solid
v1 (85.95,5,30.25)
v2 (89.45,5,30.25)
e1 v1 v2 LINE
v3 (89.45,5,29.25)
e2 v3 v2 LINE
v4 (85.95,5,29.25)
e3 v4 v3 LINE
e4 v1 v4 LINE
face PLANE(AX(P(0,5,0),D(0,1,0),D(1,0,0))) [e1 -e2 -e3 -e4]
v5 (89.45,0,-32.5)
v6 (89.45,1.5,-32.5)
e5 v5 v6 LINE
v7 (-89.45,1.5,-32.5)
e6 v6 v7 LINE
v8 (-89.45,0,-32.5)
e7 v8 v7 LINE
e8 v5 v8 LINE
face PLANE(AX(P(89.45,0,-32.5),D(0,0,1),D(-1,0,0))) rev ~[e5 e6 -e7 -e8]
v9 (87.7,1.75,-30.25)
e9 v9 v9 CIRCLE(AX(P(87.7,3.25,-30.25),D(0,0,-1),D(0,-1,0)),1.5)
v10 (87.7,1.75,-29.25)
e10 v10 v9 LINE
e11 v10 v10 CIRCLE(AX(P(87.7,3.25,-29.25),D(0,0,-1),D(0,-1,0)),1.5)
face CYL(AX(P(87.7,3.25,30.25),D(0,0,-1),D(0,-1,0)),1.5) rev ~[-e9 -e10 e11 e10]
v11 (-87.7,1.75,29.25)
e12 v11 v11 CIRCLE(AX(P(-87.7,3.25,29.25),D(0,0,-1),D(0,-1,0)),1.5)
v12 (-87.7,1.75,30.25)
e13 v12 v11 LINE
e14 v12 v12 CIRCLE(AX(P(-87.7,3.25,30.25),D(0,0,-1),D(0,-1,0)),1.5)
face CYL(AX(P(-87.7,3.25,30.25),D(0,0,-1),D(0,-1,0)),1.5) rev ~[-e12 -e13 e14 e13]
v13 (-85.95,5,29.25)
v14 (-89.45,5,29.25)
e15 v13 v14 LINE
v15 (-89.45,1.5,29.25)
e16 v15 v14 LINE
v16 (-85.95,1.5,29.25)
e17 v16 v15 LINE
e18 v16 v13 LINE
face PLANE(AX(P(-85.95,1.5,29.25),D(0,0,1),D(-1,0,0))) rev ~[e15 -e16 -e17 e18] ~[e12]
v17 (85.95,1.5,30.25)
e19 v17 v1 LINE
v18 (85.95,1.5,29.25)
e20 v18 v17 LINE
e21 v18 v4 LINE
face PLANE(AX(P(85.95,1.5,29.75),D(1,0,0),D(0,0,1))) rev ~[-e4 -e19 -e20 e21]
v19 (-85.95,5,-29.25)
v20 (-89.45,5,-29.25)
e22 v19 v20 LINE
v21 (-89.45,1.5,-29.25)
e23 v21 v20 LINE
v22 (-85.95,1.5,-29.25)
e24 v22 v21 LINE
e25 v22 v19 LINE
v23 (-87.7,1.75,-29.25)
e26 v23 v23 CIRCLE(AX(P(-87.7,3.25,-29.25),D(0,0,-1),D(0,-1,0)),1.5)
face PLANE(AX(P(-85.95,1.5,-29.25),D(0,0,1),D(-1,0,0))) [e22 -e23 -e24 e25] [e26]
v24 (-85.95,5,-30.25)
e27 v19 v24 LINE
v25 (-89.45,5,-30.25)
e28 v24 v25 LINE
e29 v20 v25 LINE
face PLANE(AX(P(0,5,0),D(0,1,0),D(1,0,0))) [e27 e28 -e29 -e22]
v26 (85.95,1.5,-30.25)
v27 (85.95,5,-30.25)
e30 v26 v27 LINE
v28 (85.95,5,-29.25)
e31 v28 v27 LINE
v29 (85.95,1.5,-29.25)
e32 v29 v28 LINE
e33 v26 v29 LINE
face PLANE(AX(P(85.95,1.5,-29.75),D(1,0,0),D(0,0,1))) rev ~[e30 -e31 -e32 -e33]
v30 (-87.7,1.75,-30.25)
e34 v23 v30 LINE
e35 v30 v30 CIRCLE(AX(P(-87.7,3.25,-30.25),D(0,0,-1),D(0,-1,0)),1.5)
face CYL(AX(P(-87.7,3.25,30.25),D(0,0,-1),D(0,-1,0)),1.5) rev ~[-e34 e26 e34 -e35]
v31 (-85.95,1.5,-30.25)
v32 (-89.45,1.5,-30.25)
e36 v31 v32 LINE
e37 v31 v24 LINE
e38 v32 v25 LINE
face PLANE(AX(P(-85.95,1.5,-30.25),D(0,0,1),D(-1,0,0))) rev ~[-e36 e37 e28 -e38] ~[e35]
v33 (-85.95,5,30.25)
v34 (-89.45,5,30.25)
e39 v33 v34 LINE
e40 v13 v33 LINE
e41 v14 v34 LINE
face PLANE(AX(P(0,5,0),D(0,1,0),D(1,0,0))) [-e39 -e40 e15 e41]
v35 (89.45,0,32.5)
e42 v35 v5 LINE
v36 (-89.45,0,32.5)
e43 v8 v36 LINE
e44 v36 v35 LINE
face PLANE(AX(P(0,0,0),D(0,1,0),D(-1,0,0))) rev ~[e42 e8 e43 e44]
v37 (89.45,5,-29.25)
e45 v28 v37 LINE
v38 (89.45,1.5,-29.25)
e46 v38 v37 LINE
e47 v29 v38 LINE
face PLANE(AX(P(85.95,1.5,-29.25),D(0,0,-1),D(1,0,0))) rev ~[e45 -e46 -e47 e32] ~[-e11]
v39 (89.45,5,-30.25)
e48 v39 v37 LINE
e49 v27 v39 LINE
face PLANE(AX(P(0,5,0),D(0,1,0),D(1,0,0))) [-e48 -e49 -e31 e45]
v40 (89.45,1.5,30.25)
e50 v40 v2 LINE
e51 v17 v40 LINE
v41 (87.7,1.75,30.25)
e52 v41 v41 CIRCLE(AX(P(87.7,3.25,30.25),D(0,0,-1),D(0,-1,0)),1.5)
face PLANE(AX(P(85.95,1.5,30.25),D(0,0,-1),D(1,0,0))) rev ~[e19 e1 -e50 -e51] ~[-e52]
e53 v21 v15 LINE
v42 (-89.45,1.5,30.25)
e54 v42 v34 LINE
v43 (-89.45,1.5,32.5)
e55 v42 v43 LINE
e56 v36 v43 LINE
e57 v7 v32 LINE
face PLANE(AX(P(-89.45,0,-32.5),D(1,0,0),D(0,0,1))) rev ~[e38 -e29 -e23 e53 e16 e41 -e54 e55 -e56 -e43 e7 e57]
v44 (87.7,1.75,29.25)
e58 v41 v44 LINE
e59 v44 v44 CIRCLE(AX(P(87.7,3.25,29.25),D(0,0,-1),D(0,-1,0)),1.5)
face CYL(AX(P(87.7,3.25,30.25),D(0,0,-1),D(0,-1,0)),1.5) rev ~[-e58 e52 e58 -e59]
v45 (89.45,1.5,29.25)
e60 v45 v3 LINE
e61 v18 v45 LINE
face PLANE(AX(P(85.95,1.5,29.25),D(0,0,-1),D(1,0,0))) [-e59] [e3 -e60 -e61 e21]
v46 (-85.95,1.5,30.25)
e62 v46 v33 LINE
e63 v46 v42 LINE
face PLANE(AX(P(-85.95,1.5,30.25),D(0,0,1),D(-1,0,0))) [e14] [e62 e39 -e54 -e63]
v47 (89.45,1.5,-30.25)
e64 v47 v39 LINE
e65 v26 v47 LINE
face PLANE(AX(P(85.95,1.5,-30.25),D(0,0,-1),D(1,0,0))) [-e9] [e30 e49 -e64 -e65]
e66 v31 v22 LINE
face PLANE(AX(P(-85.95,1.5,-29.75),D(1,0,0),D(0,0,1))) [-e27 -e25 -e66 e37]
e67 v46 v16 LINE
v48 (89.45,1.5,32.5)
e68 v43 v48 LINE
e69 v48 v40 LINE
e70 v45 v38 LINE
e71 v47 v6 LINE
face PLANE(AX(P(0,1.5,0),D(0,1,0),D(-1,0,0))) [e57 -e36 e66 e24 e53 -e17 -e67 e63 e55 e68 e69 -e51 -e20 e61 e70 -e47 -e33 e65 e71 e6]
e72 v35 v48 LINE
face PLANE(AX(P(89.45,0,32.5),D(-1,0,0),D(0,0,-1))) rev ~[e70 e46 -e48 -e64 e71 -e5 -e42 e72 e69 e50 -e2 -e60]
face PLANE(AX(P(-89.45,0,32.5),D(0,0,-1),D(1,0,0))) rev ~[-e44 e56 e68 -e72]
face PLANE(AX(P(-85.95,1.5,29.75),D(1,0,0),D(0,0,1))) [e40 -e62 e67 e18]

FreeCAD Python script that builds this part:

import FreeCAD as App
import Part
import Sketcher
Q = App.Units.Quantity

doc = App.newDocument("Part")
params = doc.addObject("Spreadsheet::Sheet", "Params")
for row, (alias, value) in enumerate([
    ("sketch1_height", "65 mm"),
    ("sketch1_width", "178.9 mm"),
    ("pad1_length", "1.5 mm"),
    ("sketch2_width", "3.5 mm"),
    ("sketch2_height", "1 mm"),
    ("pad2_length", "3.5 mm"),
    ("sketch3_diameter", "3 mm"),
    ("hole_diameter", "3 mm"),
    ("sketch4_diameter", "3 mm"),
    ("hole2_diameter", "3 mm"),
], start=1):
    params.set(f"A{row}", alias)
    params.set(f"B{row}", "=" + value)
    params.setAlias(f"B{row}", alias)

body = doc.addObject("PartDesign::Body", "Body")

# Sketch on XZ plane
sketch1 = doc.addObject("Sketcher::SketchObject", "Sketch")
body.addObject(sketch1)
sketch1.AttachmentSupport = (doc.XZ_Plane, [""])
sketch1.MapMode = "FlatFace"
sketch1.addGeometry(Part.LineSegment(App.Vector(-89.45, -32.5, 0), App.Vector(-89.45, 32.5, 0)), False)
sketch1.addGeometry(Part.LineSegment(App.Vector(-89.45, 32.5, 0), App.Vector(89.45, 32.5, 0)), False)
sketch1.addGeometry(Part.LineSegment(App.Vector(89.45, 32.5, 0), App.Vector(89.45, -32.5, 0)), False)
sketch1.addGeometry(Part.LineSegment(App.Vector(89.45, -32.5, 0), App.Vector(-89.45, -32.5, 0)), False)
sketch1.addConstraint(Sketcher.Constraint("Coincident", 0, 2, 1, 1))
sketch1.addConstraint(Sketcher.Constraint("Coincident", 1, 2, 2, 1))
sketch1.addConstraint(Sketcher.Constraint("Coincident", 2, 2, 3, 1))
sketch1.addConstraint(Sketcher.Constraint("Coincident", 3, 2, 0, 1))
sketch1.addConstraint(Sketcher.Constraint("Vertical", 0))
sketch1.addConstraint(Sketcher.Constraint("Horizontal", 1))
sketch1.addConstraint(Sketcher.Constraint("Vertical", 2))
sketch1.addConstraint(Sketcher.Constraint("Horizontal", 3))
sketch1.addConstraint(Sketcher.Constraint("Symmetric", 0, 2, 2, 2, -1, 1))
sketch1.addConstraint(Sketcher.Constraint("DistanceY", 0, 1, 0, 2, Q("65 mm")))
sketch1.addConstraint(Sketcher.Constraint("DistanceX", 1, 1, 1, 2, Q("178.9 mm")))
sketch1.setExpression("Constraints[9]", "Params.sketch1_height")
sketch1.setExpression("Constraints[10]", "Params.sketch1_width")
pad1 = doc.addObject("PartDesign::Pad", "Pad")
body.addObject(pad1)
pad1.Profile = sketch1
pad1.setExpression("Length", "Params.pad1_length")
pad1.Reversed = True

# Sketch on XZ plane
sketch2 = doc.addObject("Sketcher::SketchObject", "Sketch001")
body.addObject(sketch2)
sketch2.AttachmentSupport = (doc.XZ_Plane, [""])
sketch2.MapMode = "FlatFace"
sketch2.AttachmentOffset = App.Placement(App.Vector(0, 0, -1.5), App.Rotation())
sketch2.addGeometry(Part.LineSegment(App.Vector(85.95, 30.25, 0), App.Vector(89.45, 30.25, 0)), False)
sketch2.addGeometry(Part.LineSegment(App.Vector(89.45, 30.25, 0), App.Vector(89.45, 29.25, 0)), False)
sketch2.addGeometry(Part.LineSegment(App.Vector(89.45, 29.25, 0), App.Vector(85.95, 29.25, 0)), False)
sketch2.addGeometry(Part.LineSegment(App.Vector(85.95, 29.25, 0), App.Vector(85.95, 30.25, 0)), False)
sketch2.addGeometry(Part.LineSegment(App.Vector(85.95, -29.25, 0), App.Vector(89.45, -29.25, 0)), False)
sketch2.addGeometry(Part.LineSegment(App.Vector(89.45, -29.25, 0), App.Vector(89.45, -30.25, 0)), False)
sketch2.addGeometry(Part.LineSegment(App.Vector(89.45, -30.25, 0), App.Vector(85.95, -30.25, 0)), False)
sketch2.addGeometry(Part.LineSegment(App.Vector(85.95, -30.25, 0), App.Vector(85.95, -29.25, 0)), False)
sketch2.addGeometry(Part.LineSegment(App.Vector(-85.95, 30.25, 0), App.Vector(-85.95, 29.25, 0)), False)
sketch2.addGeometry(Part.LineSegment(App.Vector(-85.95, 29.25, 0), App.Vector(-89.45, 29.25, 0)), False)
sketch2.addGeometry(Part.LineSegment(App.Vector(-89.45, 29.25, 0), App.Vector(-89.45, 30.25, 0)), False)
sketch2.addGeometry(Part.LineSegment(App.Vector(-89.45, 30.25, 0), App.Vector(-85.95, 30.25, 0)), False)
sketch2.addGeometry(Part.LineSegment(App.Vector(-89.45, -29.25, 0), App.Vector(-85.95, -29.25, 0)), False)
sketch2.addGeometry(Part.LineSegment(App.Vector(-85.95, -29.25, 0), App.Vector(-85.95, -30.25, 0)), False)
sketch2.addGeometry(Part.LineSegment(App.Vector(-85.95, -30.25, 0), App.Vector(-89.45, -30.25, 0)), False)
sketch2.addGeometry(Part.LineSegment(App.Vector(-89.45, -30.25, 0), App.Vector(-89.45, -29.25, 0)), False)
sketch2.addConstraint(Sketcher.Constraint("Coincident", 0, 2, 1, 1))
sketch2.addConstraint(Sketcher.Constraint("Coincident", 1, 2, 2, 1))
sketch2.addConstraint(Sketcher.Constraint("Coincident", 2, 2, 3, 1))
sketch2.addConstraint(Sketcher.Constraint("Coincident", 3, 2, 0, 1))
sketch2.addConstraint(Sketcher.Constraint("Coincident", 4, 2, 5, 1))
sketch2.addConstraint(Sketcher.Constraint("Coincident", 5, 2, 6, 1))
sketch2.addConstraint(Sketcher.Constraint("Coincident", 6, 2, 7, 1))
sketch2.addConstraint(Sketcher.Constraint("Coincident", 7, 2, 4, 1))
sketch2.addConstraint(Sketcher.Constraint("Coincident", 8, 2, 9, 1))
sketch2.addConstraint(Sketcher.Constraint("Coincident", 9, 2, 10, 1))
sketch2.addConstraint(Sketcher.Constraint("Coincident", 10, 2, 11, 1))
sketch2.addConstraint(Sketcher.Constraint("Coincident", 11, 2, 8, 1))
sketch2.addConstraint(Sketcher.Constraint("Coincident", 12, 2, 13, 1))
sketch2.addConstraint(Sketcher.Constraint("Coincident", 13, 2, 14, 1))
sketch2.addConstraint(Sketcher.Constraint("Coincident", 14, 2, 15, 1))
sketch2.addConstraint(Sketcher.Constraint("Coincident", 15, 2, 12, 1))
sketch2.addConstraint(Sketcher.Constraint("Horizontal", 0))
sketch2.addConstraint(Sketcher.Constraint("Vertical", 1))
sketch2.addConstraint(Sketcher.Constraint("Horizontal", 2))
sketch2.addConstraint(Sketcher.Constraint("Vertical", 3))
sketch2.addConstraint(Sketcher.Constraint("Horizontal", 4))
sketch2.addConstraint(Sketcher.Constraint("Vertical", 5))
sketch2.addConstraint(Sketcher.Constraint("Horizontal", 6))
sketch2.addConstraint(Sketcher.Constraint("Vertical", 7))
sketch2.addConstraint(Sketcher.Constraint("Vertical", 8))
sketch2.addConstraint(Sketcher.Constraint("Horizontal", 9))
sketch2.addConstraint(Sketcher.Constraint("Vertical", 10))
sketch2.addConstraint(Sketcher.Constraint("Horizontal", 11))
sketch2.addConstraint(Sketcher.Constraint("Horizontal", 12))
sketch2.addConstraint(Sketcher.Constraint("Vertical", 13))
sketch2.addConstraint(Sketcher.Constraint("Horizontal", 14))
sketch2.addConstraint(Sketcher.Constraint("Vertical", 15))
sketch2.addConstraint(Sketcher.Constraint("Symmetric", 7, 2, 8, 2, -1, 1))
sketch2.addConstraint(Sketcher.Constraint("Symmetric", 5, 2, 10, 2, -1, 1))
sketch2.addConstraint(Sketcher.Constraint("Symmetric", 2, 2, 12, 2, -1, 1))
sketch2.addConstraint(Sketcher.Constraint("Symmetric", 0, 2, 14, 2, -1, 1))
sketch2.addConstraint(Sketcher.Constraint("Symmetric", 2, 2, 8, 2, -2))
sketch2.addConstraint(Sketcher.Constraint("Symmetric", 0, 2, 10, 2, -2))
sketch2.addConstraint(Sketcher.Constraint("DistanceX", 0, 1, 0, 2, Q("3.5 mm")))
sketch2.addConstraint(Sketcher.Constraint("DistanceY", 4, 2, 0, 2, Q("59.5 mm")))
sketch2.addConstraint(Sketcher.Constraint("DistanceY", 1, 2, 1, 1, Q("1 mm")))
sketch2.addConstraint(Sketcher.Constraint("DistanceX", 8, 2, 2, 2, Q("171.9 mm")))
sketch2.setExpression("Constraints[38]", "Params.sketch2_width")
sketch2.setExpression("Constraints[40]", "Params.sketch2_height")
pad2 = doc.addObject("PartDesign::Pad", "Pad001")
body.addObject(pad2)
pad2.Profile = sketch2
pad2.setExpression("Length", "Params.pad2_length")
pad2.Reversed = True

# Sketch on XY plane
sketch3 = doc.addObject("Sketcher::SketchObject", "Sketch002")
body.addObject(sketch3)
sketch3.AttachmentSupport = (doc.XY_Plane, [""])
sketch3.MapMode = "FlatFace"
sketch3.AttachmentOffset = App.Placement(App.Vector(0, 0, 30.25), App.Rotation())
sketch3.addGeometry(Part.Circle(App.Vector(-87.7, 3.25, 0), App.Vector(0, 0, 1), 1.5), False)
sketch3.addConstraint(Sketcher.Constraint("Diameter", 0, Q("3 mm")))
sketch3.addConstraint(Sketcher.Constraint("DistanceX", 0, 3, -1, 1, Q("87.7 mm")))
sketch3.addConstraint(Sketcher.Constraint("DistanceY", -1, 1, 0, 3, Q("3.25 mm")))
sketch3.setExpression("Constraints[0]", "Params.sketch3_diameter")
doc.recompute()
hole = doc.addObject("PartDesign::Hole", "Hole")
body.addObject(hole)
hole.Profile = sketch3
hole.ThreadType = "None"
hole.setExpression("Diameter", "Params.hole_diameter")
hole.DepthType = "ThroughAll"

# Sketch on XY plane
sketch4 = doc.addObject("Sketcher::SketchObject", "Sketch003")
body.addObject(sketch4)
sketch4.AttachmentSupport = (doc.XY_Plane, [""])
sketch4.MapMode = "FlatFace"
sketch4.AttachmentOffset = App.Placement(App.Vector(0, 0, 30.25), App.Rotation())
sketch4.addGeometry(Part.Circle(App.Vector(87.7, 3.25, 0), App.Vector(0, 0, 1), 1.5), False)
sketch4.addConstraint(Sketcher.Constraint("Diameter", 0, Q("3 mm")))
sketch4.addConstraint(Sketcher.Constraint("DistanceX", -1, 1, 0, 3, Q("87.7 mm")))
sketch4.addConstraint(Sketcher.Constraint("DistanceY", -1, 1, 0, 3, Q("3.25 mm")))
sketch4.setExpression("Constraints[0]", "Params.sketch4_diameter")
doc.recompute()
hole2 = doc.addObject("PartDesign::Hole", "Hole001")
body.addObject(hole2)
hole2.Profile = sketch4
hole2.ThreadType = "None"
hole2.setExpression("Diameter", "Params.hole2_diameter")
hole2.DepthType = "ThroughAll"

doc.recompute()
